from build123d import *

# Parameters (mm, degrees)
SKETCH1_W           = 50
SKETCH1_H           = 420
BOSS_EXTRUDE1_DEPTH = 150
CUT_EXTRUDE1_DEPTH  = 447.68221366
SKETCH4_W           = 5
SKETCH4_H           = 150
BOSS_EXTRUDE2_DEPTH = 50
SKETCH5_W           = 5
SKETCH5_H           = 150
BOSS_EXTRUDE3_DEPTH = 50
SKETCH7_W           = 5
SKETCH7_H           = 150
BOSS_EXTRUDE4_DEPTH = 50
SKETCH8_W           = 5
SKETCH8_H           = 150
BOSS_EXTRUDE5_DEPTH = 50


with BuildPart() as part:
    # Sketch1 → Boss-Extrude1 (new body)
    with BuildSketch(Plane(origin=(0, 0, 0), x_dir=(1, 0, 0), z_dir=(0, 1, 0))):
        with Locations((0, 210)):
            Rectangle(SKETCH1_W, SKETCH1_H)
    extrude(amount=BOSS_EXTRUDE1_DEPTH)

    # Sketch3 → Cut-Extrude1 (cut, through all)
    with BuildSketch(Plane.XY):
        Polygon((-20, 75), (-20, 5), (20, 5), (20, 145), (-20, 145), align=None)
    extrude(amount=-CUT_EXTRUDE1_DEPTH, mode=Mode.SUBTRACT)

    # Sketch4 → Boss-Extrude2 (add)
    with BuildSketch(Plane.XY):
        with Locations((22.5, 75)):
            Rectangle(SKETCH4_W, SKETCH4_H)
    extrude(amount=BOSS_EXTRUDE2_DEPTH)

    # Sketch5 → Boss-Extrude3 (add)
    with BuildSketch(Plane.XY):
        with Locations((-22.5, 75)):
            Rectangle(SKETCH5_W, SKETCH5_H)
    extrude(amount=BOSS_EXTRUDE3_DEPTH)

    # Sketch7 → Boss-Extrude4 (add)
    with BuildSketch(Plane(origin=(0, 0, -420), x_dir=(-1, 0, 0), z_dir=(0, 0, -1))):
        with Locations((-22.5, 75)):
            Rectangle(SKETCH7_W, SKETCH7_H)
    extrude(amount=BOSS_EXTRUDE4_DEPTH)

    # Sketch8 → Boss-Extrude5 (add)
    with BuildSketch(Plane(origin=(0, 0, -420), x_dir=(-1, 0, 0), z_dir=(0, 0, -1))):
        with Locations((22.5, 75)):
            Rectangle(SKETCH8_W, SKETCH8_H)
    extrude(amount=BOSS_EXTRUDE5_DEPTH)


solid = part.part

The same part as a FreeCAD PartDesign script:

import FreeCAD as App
import Part
import Sketcher
Q = App.Units.Quantity


def add_polygon(sketch, points):
    """Adds a closed chain of lines whose ends are joined by coincident constraints."""
    first, n = sketch.GeometryCount, len(points)
    for a, b in zip(points, points[1:] + points[:1]):
        sketch.addGeometry(Part.LineSegment(App.Vector(*a, 0), App.Vector(*b, 0)), False)
    for i in range(n):
        sketch.addConstraint(Sketcher.Constraint("Coincident", first + i, 2, first + (i + 1) % n, 1))

doc = App.newDocument("Part")
body = doc.addObject("PartDesign::Body", "Body")

sketch1 = body.newObject("Sketcher::SketchObject", "Sketch")
sketch1.AttachmentSupport = (doc.getObject("XZ_Plane"), [""])
sketch1.MapMode = "FlatFace"
add_polygon(sketch1, [(-25, -420), (-25, 0), (25, 0), (25, -420)])
sketch1.addConstraint(Sketcher.Constraint("Vertical", 0))
sketch1.addConstraint(Sketcher.Constraint("Horizontal", 1))
sketch1.addConstraint(Sketcher.Constraint("Vertical", 2))
sketch1.addConstraint(Sketcher.Constraint("Horizontal", 3))
sketch1.addConstraint(Sketcher.Constraint("Symmetric", 0, 2, 1, 2, -1, 1))
sketch1.addConstraint(Sketcher.Constraint("DistanceX", 1, 1, 1, 2, Q("50 mm")))
sketch1.addConstraint(Sketcher.Constraint("DistanceY", 0, 1, 0, 2, Q("420 mm")))
pad1 = body.newObject("PartDesign::Pad", "Pad")
pad1.Profile = sketch1
pad1.Length = 150
pad1.Reversed = True

sketch2 = body.newObject("Sketcher::SketchObject", "Sketch001")
sketch2.AttachmentSupport = (doc.getObject("XY_Plane"), [""])
sketch2.MapMode = "FlatFace"
add_polygon(sketch2, [(-20, 5), (20, 5), (20, 145), (-20, 145)])
sketch2.addConstraint(Sketcher.Constraint("Horizontal", 0))
sketch2.addConstraint(Sketcher.Constraint("Vertical", 1))
sketch2.addConstraint(Sketcher.Constraint("Horizontal", 2))
sketch2.addConstraint(Sketcher.Constraint("Vertical", 3))
sketch2.addConstraint(Sketcher.Constraint("DistanceX", 0, 1, 0, 2, Q("40 mm")))
sketch2.addConstraint(Sketcher.Constraint("DistanceY", 1, 1, 1, 2, Q("140 mm")))
sketch2.addConstraint(Sketcher.Constraint("DistanceX", -1, 1, 0, 2, Q("20 mm")))
sketch2.addConstraint(Sketcher.Constraint("DistanceY", -1, 1, 0, 2, Q("5 mm")))
pocket1 = body.newObject("PartDesign::Pocket", "Pocket")
pocket1.Profile = sketch2
pocket1.Type = "ThroughAll"

sketch3 = body.newObject("Sketcher::SketchObject", "Sketch002")
sketch3.AttachmentSupport = (doc.getObject("XY_Plane"), [""])
sketch3.MapMode = "FlatFace"
add_polygon(sketch3, [(20, 150), (20, 0), (25, 0), (25, 150)])
sketch3.addConstraint(Sketcher.Constraint("Vertical", 0))
sketch3.addConstraint(Sketcher.Constraint("Horizontal", 1))
sketch3.addConstraint(Sketcher.Constraint("Vertical", 2))
sketch3.addConstraint(Sketcher.Constraint("Horizontal", 3))
sketch3.addConstraint(Sketcher.Constraint("PointOnObject", 0, 2, -1))
sketch3.addConstraint(Sketcher.Constraint("DistanceX", 1, 1, 1, 2, Q("5 mm")))
sketch3.addConstraint(Sketcher.Constraint("DistanceY", 0, 2, 0, 1, Q("150 mm")))
sketch3.addConstraint(Sketcher.Constraint("DistanceX", -1, 1, 0, 2, Q("20 mm")))
pad2 = body.newObject("PartDesign::Pad", "Pad001")
pad2.Profile = sketch3
pad2.Length = 50

sketch4 = body.newObject("Sketcher::SketchObject", "Sketch003")
sketch4.AttachmentSupport = (doc.getObject("XY_Plane"), [""])
sketch4.MapMode = "FlatFace"
add_polygon(sketch4, [(-25, 150), (-25, 0), (-20, 0), (-20, 150)])
sketch4.addConstraint(Sketcher.Constraint("Vertical", 0))
sketch4.addConstraint(Sketcher.Constraint("Horizontal", 1))
sketch4.addConstraint(Sketcher.Constraint("Vertical", 2))
sketch4.addConstraint(Sketcher.Constraint("Horizontal", 3))
sketch4.addConstraint(Sketcher.Constraint("PointOnObject", 0, 2, -1))
sketch4.addConstraint(Sketcher.Constraint("DistanceX", 1, 1, 1, 2, Q("5 mm")))
sketch4.addConstraint(Sketcher.Constraint("DistanceY", 0, 2, 0, 1, Q("150 mm")))
sketch4.addConstraint(Sketcher.Constraint("DistanceX", 0, 2, -1, 1, Q("25 mm")))
pad3 = body.newObject("PartDesign::Pad", "Pad002")
pad3.Profile = sketch4
pad3.Length = 50

sketch5 = body.newObject("Sketcher::SketchObject", "Sketch004")
sketch5.AttachmentSupport = (doc.getObject("XY_Plane"), [""])
sketch5.MapMode = "FlatFace"
sketch5.AttachmentOffset = App.Placement(App.Vector(0, 0, -420), App.Rotation())
add_polygon(sketch5, [(25, 150), (25, 0), (20, 0), (20, 150)])
sketch5.addConstraint(Sketcher.Constraint("Vertical", 0))
sketch5.addConstraint(Sketcher.Constraint("Horizontal", 1))
sketch5.addConstraint(Sketcher.Constraint("Vertical", 2))
sketch5.addConstraint(Sketcher.Constraint("Horizontal", 3))
sketch5.addConstraint(Sketcher.Constraint("PointOnObject", 0, 2, -1))
sketch5.addConstraint(Sketcher.Constraint("DistanceX", 1, 2, 1, 1, Q("5 mm")))
sketch5.addConstraint(Sketcher.Constraint("DistanceY", 0, 2, 0, 1, Q("150 mm")))
sketch5.addConstraint(Sketcher.Constraint("DistanceX", -1, 1, 0, 2, Q("25 mm")))
pad4 = body.newObject("PartDesign::Pad", "Pad003")
pad4.Profile = sketch5
pad4.Length = 50
pad4.Reversed = True

sketch6 = body.newObject("Sketcher::SketchObject", "Sketch005")
sketch6.AttachmentSupport = (doc.getObject("XY_Plane"), [""])
sketch6.MapMode = "FlatFace"
sketch6.AttachmentOffset = App.Placement(App.Vector(0, 0, -420), App.Rotation())
add_polygon(sketch6, [(-20, 150), (-20, 0), (-25, 0), (-25, 150)])
sketch6.addConstraint(Sketcher.Constraint("Vertical", 0))
sketch6.addConstraint(Sketcher.Constraint("Horizontal", 1))
sketch6.addConstraint(Sketcher.Constraint("Vertical", 2))
sketch6.addConstraint(Sketcher.Constraint("Horizontal", 3))
sketch6.addConstraint(Sketcher.Constraint("PointOnObject", 0, 2, -1))
sketch6.addConstraint(Sketcher.Constraint("DistanceX", 1, 2, 1, 1, Q("5 mm")))
sketch6.addConstraint(Sketcher.Constraint("DistanceY", 0, 2, 0, 1, Q("150 mm")))
sketch6.addConstraint(Sketcher.Constraint("DistanceX", 0, 2, -1, 1, Q("20 mm")))
pad5 = body.newObject("PartDesign::Pad", "Pad004")
pad5.Profile = sketch6
pad5.Length = 50
pad5.Reversed = True

doc.recompute()
